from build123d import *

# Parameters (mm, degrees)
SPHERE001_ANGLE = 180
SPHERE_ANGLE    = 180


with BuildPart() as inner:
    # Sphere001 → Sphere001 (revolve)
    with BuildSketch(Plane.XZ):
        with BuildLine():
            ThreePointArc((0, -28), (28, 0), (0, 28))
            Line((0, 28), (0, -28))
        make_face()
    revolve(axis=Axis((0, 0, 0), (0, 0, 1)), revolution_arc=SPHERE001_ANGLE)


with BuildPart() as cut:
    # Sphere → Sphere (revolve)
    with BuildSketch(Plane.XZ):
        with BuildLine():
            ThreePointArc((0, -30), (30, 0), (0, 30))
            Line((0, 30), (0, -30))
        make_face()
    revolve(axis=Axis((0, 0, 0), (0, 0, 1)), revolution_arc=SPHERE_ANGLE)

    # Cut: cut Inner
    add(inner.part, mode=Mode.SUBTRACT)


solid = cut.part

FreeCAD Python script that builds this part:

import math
import FreeCAD as App
import Part
import Sketcher
from FreeCAD import Vector

doc = App.newDocument("Part")
params = doc.addObject("Spreadsheet::Sheet", "Params")
for row, (alias, value) in enumerate([
    ("sketch1_radius", "28 mm"),
    ("revolution_angle", "180 deg"),
    ("sketch2_radius", "30 mm"),
    ("revolution2_angle", "180 deg"),
], start=1):
    params.set(f"A{row}", alias)
    params.set(f"B{row}", "=" + value)
    params.setAlias(f"B{row}", alias)

body = doc.addObject("PartDesign::Body", "Body")

sketch1 = doc.addObject("Sketcher::SketchObject", "Sketch")
body.addObject(sketch1)
sketch1.AttachmentSupport = (doc.XZ_Plane, [""])
sketch1.MapMode = "FlatFace"
sketch1.addGeometry([
    Part.ArcOfCircle(Part.Circle(Vector(0, 0, 0), Vector(0, 0, 1), 28), math.radians(-90), math.radians(90)),
    Part.LineSegment(Vector(0, 28, 0), Vector(0, -28, 0)),
], False)
sketch1.addConstraint([
    Sketcher.Constraint("Coincident", 0, 1, 1, 2),
    Sketcher.Constraint("Coincident", 1, 1, 0, 2),
    Sketcher.Constraint("Vertical", 1),
    Sketcher.Constraint("Coincident", 0, 3, -1, 1),
    Sketcher.Constraint("PointOnObject", 0, 1, -2),
    Sketcher.Constraint("Radius", 0, 28.0),
])
sketch1.setExpression("Constraints[5]", "Params.sketch1_radius")
revolution = doc.addObject("PartDesign::Revolution", "Revolution")
body.addObject(revolution)
revolution.Profile = sketch1
revolution.ReferenceAxis = (sketch1, ["V_Axis"])
revolution.setExpression("Angle", "Params.revolution_angle")
body2 = doc.addObject("PartDesign::Body", "Body001")

sketch2 = doc.addObject("Sketcher::SketchObject", "Sketch001")
body2.addObject(sketch2)
sketch2.AttachmentSupport = (doc.getObject("XZ_Plane001"), [""])
sketch2.MapMode = "FlatFace"
sketch2.addGeometry([
    Part.ArcOfCircle(Part.Circle(Vector(0, 0, 0), Vector(0, 0, 1), 30), math.radians(-90), math.radians(90)),
    Part.LineSegment(Vector(0, 30, 0), Vector(0, -30, 0)),
], False)
sketch2.addConstraint([
    Sketcher.Constraint("Coincident", 0, 1, 1, 2),
    Sketcher.Constraint("Coincident", 1, 1, 0, 2),
    Sketcher.Constraint("Vertical", 1),
    Sketcher.Constraint("Coincident", 0, 3, -1, 1),
    Sketcher.Constraint("PointOnObject", 0, 1, -2),
    Sketcher.Constraint("Radius", 0, 30.0),
])
sketch2.setExpression("Constraints[5]", "Params.sketch2_radius")
revolution2 = doc.addObject("PartDesign::Revolution", "Revolution001")
body2.addObject(revolution2)
revolution2.Profile = sketch2
revolution2.ReferenceAxis = (sketch2, ["V_Axis"])
revolution2.setExpression("Angle", "Params.revolution2_angle")
doc.recompute()

boolean = doc.addObject("PartDesign::Boolean", "Boolean")
body2.addObject(boolean)
boolean.Type = "Cut"
boolean.addObjects([body])

doc.recompute()
